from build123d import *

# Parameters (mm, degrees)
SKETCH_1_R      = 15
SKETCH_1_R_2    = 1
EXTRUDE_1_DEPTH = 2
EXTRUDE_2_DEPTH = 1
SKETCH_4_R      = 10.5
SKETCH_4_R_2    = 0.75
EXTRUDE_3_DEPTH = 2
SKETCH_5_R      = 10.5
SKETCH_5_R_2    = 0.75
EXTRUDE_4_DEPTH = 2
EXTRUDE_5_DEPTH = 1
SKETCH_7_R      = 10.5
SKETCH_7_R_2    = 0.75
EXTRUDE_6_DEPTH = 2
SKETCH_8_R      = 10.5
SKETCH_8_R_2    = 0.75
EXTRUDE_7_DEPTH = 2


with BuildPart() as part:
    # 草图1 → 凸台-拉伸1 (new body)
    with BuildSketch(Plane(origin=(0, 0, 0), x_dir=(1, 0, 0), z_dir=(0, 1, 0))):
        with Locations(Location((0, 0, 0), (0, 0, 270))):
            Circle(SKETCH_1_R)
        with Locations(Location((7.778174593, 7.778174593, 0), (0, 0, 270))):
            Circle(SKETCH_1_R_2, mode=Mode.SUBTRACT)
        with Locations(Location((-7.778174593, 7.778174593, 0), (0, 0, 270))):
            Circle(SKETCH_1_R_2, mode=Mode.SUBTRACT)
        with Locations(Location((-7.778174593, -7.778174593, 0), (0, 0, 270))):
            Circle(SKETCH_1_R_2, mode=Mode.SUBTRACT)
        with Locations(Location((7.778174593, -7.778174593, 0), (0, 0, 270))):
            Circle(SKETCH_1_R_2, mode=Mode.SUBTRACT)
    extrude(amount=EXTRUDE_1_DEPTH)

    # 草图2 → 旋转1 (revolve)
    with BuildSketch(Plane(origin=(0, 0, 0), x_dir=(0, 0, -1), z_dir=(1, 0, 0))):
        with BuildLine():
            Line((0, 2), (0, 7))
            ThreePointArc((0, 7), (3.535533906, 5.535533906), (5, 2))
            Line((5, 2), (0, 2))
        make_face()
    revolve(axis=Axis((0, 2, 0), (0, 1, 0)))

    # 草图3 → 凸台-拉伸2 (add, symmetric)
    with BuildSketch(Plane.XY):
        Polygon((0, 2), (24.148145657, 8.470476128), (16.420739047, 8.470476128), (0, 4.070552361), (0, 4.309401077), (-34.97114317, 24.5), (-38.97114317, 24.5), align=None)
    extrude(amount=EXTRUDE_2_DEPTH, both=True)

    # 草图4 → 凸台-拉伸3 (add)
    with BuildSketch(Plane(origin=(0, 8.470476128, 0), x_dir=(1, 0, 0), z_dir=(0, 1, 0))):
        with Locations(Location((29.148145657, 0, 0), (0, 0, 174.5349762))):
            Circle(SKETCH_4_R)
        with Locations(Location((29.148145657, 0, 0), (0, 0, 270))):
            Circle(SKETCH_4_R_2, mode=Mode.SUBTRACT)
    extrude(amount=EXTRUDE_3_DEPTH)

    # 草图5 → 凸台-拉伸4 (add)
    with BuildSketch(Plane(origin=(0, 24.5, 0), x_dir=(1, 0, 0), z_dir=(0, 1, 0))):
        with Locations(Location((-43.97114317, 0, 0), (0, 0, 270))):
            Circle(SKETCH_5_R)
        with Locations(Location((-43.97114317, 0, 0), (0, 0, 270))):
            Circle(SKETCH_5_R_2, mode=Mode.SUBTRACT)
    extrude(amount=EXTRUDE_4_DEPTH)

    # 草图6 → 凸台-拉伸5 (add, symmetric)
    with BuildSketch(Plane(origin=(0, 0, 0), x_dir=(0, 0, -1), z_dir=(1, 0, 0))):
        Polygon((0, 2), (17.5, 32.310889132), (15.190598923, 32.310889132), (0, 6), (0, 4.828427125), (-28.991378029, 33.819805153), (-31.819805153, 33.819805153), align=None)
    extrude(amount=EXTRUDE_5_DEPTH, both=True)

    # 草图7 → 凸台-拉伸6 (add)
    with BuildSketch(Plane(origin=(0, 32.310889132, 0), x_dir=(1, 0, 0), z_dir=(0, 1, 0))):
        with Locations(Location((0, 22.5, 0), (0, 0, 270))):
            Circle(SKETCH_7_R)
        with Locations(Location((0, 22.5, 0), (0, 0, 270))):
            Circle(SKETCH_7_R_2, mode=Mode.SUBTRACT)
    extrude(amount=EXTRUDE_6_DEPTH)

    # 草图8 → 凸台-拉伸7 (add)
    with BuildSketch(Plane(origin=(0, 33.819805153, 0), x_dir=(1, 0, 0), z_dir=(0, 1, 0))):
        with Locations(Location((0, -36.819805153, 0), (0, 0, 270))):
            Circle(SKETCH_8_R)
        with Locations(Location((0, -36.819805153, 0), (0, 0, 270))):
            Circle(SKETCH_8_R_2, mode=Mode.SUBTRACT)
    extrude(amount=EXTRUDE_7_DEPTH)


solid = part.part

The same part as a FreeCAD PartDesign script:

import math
import FreeCAD as App
import Part
import Sketcher

V = App.Vector
Q = App.Units.Quantity

doc = App.newDocument("Part")
body = doc.addObject("PartDesign::Body", "Body")

sketch1 = doc.addObject("Sketcher::SketchObject", "Sketch")
body.addObject(sketch1)
sketch1.AttachmentSupport = (doc.XZ_Plane, [""])
sketch1.MapMode = "FlatFace"
sketch1.addGeometry([
    Part.Circle(V(0, 0, 0), V(0, 0, 1), 15),
    Part.Circle(V(-7.8, -7.8, 0), V(0, 0, 1), 1),
    Part.Circle(V(-7.8, 7.8, 0), V(0, 0, 1), 1),
    Part.Circle(V(7.8, -7.8, 0), V(0, 0, 1), 1),
    Part.Circle(V(7.8, 7.8, 0), V(0, 0, 1), 1),
], False)
sketch1.addConstraint([
    Sketcher.Constraint("Coincident", 0, 3, -1, 1),
    Sketcher.Constraint("Equal", 1, 2),
    Sketcher.Constraint("Equal", 2, 3),
    Sketcher.Constraint("Equal", 3, 4),
    Sketcher.Constraint("Symmetric", 2, 3, 3, 3, -1, 1),
    Sketcher.Constraint("Symmetric", 1, 3, 4, 3, -1, 1),
    Sketcher.Constraint("Symmetric", 1, 3, 3, 3, -2),
    Sketcher.Constraint("Diameter", 0, Q("30 mm")),
    Sketcher.Constraint("Diameter", 1, Q("2 mm")),
    Sketcher.Constraint("DistanceY", 1, 3, 2, 3, Q("15.556349 mm")),
    Sketcher.Constraint("DistanceX", 1, 3, 3, 3, Q("15.556349 mm")),
])
pad1 = doc.addObject("PartDesign::Pad", "Pad")
body.addObject(pad1)
pad1.Profile = sketch1
pad1.Length = 2
pad1.Reversed = True

sketch2 = doc.addObject("Sketcher::SketchObject", "Sketch001")
body.addObject(sketch2)
sketch2.AttachmentSupport = (doc.YZ_Plane, [""])
sketch2.MapMode = "FlatFace"
sketch2.addGeometry([
    Part.LineSegment(V(7, 0, 0), V(2, 0, 0)),
    Part.LineSegment(V(2, 0, 0), V(2, -5, 0)),
    Part.ArcOfCircle(Part.Circle(V(2, 0, 0), V(0, 0, 1), 5), math.radians(-90), math.radians(0)),
], False)
sketch2.addConstraint([
    Sketcher.Constraint("Coincident", 0, 2, 1, 1),
    Sketcher.Constraint("Coincident", 1, 2, 2, 1),
    Sketcher.Constraint("Coincident", 2, 2, 0, 1),
    Sketcher.Constraint("Horizontal", 0),
    Sketcher.Constraint("Vertical", 1),
    Sketcher.Constraint("Coincident", 0, 2, 2, 3),
    Sketcher.Constraint("PointOnObject", 2, 3, -1),
    Sketcher.Constraint("Radius", 2, Q("5 mm")),
    Sketcher.Constraint("DistanceX", -1, 1, 2, 3, Q("2 mm")),
])
revolution = doc.addObject("PartDesign::Revolution", "Revolution")
body.addObject(revolution)
revolution.Profile = sketch2
revolution.ReferenceAxis = (sketch2, ["H_Axis"])
revolution.Angle = 360

sketch3 = doc.addObject("Sketcher::SketchObject", "Sketch002")
body.addObject(sketch3)
sketch3.AttachmentSupport = (doc.XY_Plane, [""])
sketch3.MapMode = "FlatFace"
sketch3.addGeometry([
    Part.LineSegment(V(0, 2, 0), V(24.15, 8.47, 0)),
    Part.LineSegment(V(24.15, 8.47, 0), V(16.42, 8.47, 0)),
    Part.LineSegment(V(16.42, 8.47, 0), V(0, 4.07, 0)),
    Part.LineSegment(V(0, 4.07, 0), V(0, 4.31, 0)),
    Part.LineSegment(V(0, 4.31, 0), V(-34.97, 24.5, 0)),
    Part.LineSegment(V(-34.97, 24.5, 0), V(-38.97, 24.5, 0)),
    Part.LineSegment(V(-38.97, 24.5, 0), V(0, 2, 0)),
], False)
sketch3.addConstraint([
    Sketcher.Constraint("Coincident", 0, 2, 1, 1),
    Sketcher.Constraint("Coincident", 1, 2, 2, 1),
    Sketcher.Constraint("Coincident", 2, 2, 3, 1),
    Sketcher.Constraint("Coincident", 3, 2, 4, 1),
    Sketcher.Constraint("Coincident", 4, 2, 5, 1),
    Sketcher.Constraint("Coincident", 5, 2, 6, 1),
    Sketcher.Constraint("Coincident", 6, 2, 0, 1),
    Sketcher.Constraint("Horizontal", 1),
    Sketcher.Constraint("Vertical", 3),
    Sketcher.Constraint("Horizontal", 5),
    Sketcher.Constraint("PointOnObject", 2, 2, -2),
    Sketcher.Constraint("PointOnObject", 6, 2, -2),
    Sketcher.Constraint("Parallel", 0, 2),
    Sketcher.Constraint("Parallel", 4, 6),
    Sketcher.Constraint("DistanceX", 5, 2, 5, 1, Q("4 mm")),
    Sketcher.Constraint("Angle", 0, Q("15 deg")),
    Sketcher.Constraint("Angle", 4, Q("150 deg")),
    Sketcher.Constraint("Distance", 0, Q("25 mm")),
    Sketcher.Constraint("Distance", 2, Q("17 mm")),
    Sketcher.Constraint("Distance", 6, Q("45 mm")),
    Sketcher.Constraint("DistanceY", -1, 1, 6, 2, Q("2 mm")),
])
pad2 = doc.addObject("PartDesign::Pad", "Pad001")
body.addObject(pad2)
pad2.Profile = sketch3
pad2.Length = 2
pad2.Midplane = True

sketch4 = doc.addObject("Sketcher::SketchObject", "Sketch003")
body.addObject(sketch4)
sketch4.AttachmentSupport = (doc.XZ_Plane, [""])
sketch4.MapMode = "FlatFace"
sketch4.AttachmentOffset = App.Placement(V(0, 0, -8.470476), App.Rotation())
sketch4.addGeometry([
    Part.Circle(V(29.1, 0, 0), V(0, 0, 1), 10.5),
    Part.Circle(V(29.1, 0, 0), V(0, 0, 1), 0.8),
], False)
sketch4.addConstraint([
    Sketcher.Constraint("Coincident", 1, 3, 0, 3),
    Sketcher.Constraint("PointOnObject", 0, 3, -1),
    Sketcher.Constraint("Diameter", 0, Q("21 mm")),
    Sketcher.Constraint("Diameter", 1, Q("1.5 mm")),
    Sketcher.Constraint("DistanceX", -1, 1, 0, 3, Q("29.148146 mm")),
])
pad3 = doc.addObject("PartDesign::Pad", "Pad002")
body.addObject(pad3)
pad3.Profile = sketch4
pad3.Length = 2
pad3.Reversed = True

sketch5 = doc.addObject("Sketcher::SketchObject", "Sketch004")
body.addObject(sketch5)
sketch5.AttachmentSupport = (doc.XZ_Plane, [""])
sketch5.MapMode = "FlatFace"
sketch5.AttachmentOffset = App.Placement(V(0, 0, -24.5), App.Rotation())
sketch5.addGeometry([
    Part.Circle(V(-44, 0, 0), V(0, 0, 1), 10.5),
    Part.Circle(V(-44, 0, 0), V(0, 0, 1), 0.8),
], False)
sketch5.addConstraint([
    Sketcher.Constraint("Coincident", 1, 3, 0, 3),
    Sketcher.Constraint("PointOnObject", 0, 3, -1),
    Sketcher.Constraint("Diameter", 0, Q("21 mm")),
    Sketcher.Constraint("Diameter", 1, Q("1.5 mm")),
    Sketcher.Constraint("DistanceX", 0, 3, -1, 1, Q("43.971143 mm")),
])
pad4 = doc.addObject("PartDesign::Pad", "Pad003")
body.addObject(pad4)
pad4.Profile = sketch5
pad4.Length = 2
pad4.Reversed = True

sketch6 = doc.addObject("Sketcher::SketchObject", "Sketch005")
body.addObject(sketch6)
sketch6.AttachmentSupport = (doc.YZ_Plane, [""])
sketch6.MapMode = "FlatFace"
sketch6.addGeometry([
    Part.LineSegment(V(2, 0, 0), V(32.3, -17.5, 0)),
    Part.LineSegment(V(32.3, -17.5, 0), V(32.3, -15.2, 0)),
    Part.LineSegment(V(32.3, -15.2, 0), V(6, 0, 0)),
    Part.LineSegment(V(6, 0, 0), V(4.8, 0, 0)),
    Part.LineSegment(V(4.8, 0, 0), V(33.8, 29, 0)),
    Part.LineSegment(V(33.8, 29, 0), V(33.8, 31.8, 0)),
    Part.LineSegment(V(33.8, 31.8, 0), V(2, 0, 0)),
], False)
sketch6.addConstraint([
    Sketcher.Constraint("Coincident", 0, 2, 1, 1),
    Sketcher.Constraint("Coincident", 1, 2, 2, 1),
    Sketcher.Constraint("Coincident", 2, 2, 3, 1),
    Sketcher.Constraint("Coincident", 3, 2, 4, 1),
    Sketcher.Constraint("Coincident", 4, 2, 5, 1),
    Sketcher.Constraint("Coincident", 5, 2, 6, 1),
    Sketcher.Constraint("Coincident", 6, 2, 0, 1),
    Sketcher.Constraint("Vertical", 1),
    Sketcher.Constraint("Horizontal", 3),
    Sketcher.Constraint("Vertical", 5),
    Sketcher.Constraint("PointOnObject", 2, 2, -1),
    Sketcher.Constraint("PointOnObject", 6, 2, -1),
    Sketcher.Constraint("Parallel", 0, 2),
    Sketcher.Constraint("Parallel", 4, 6),
    Sketcher.Constraint("Angle", 0, Q("-30 deg")),
    Sketcher.Constraint("Angle", 4, Q("45 deg")),
    Sketcher.Constraint("Distance", 0, Q("35 mm")),
    Sketcher.Constraint("Distance", 4, Q("41 mm")),
    Sketcher.Constraint("Distance", 6, Q("45 mm")),
    Sketcher.Constraint("DistanceX", -1, 1, 2, 2, Q("6 mm")),
    Sketcher.Constraint("DistanceX", -1, 1, 6, 2, Q("2 mm")),
])
pad5 = doc.addObject("PartDesign::Pad", "Pad004")
body.addObject(pad5)
pad5.Profile = sketch6
pad5.Length = 2
pad5.Midplane = True

sketch7 = doc.addObject("Sketcher::SketchObject", "Sketch006")
body.addObject(sketch7)
sketch7.AttachmentSupport = (doc.XZ_Plane, [""])
sketch7.MapMode = "FlatFace"
sketch7.AttachmentOffset = App.Placement(V(0, 0, -32.310889), App.Rotation())
sketch7.addGeometry([
    Part.Circle(V(0, -22.5, 0), V(0, 0, 1), 10.5),
    Part.Circle(V(0, -22.5, 0), V(0, 0, 1), 0.8),
], False)
sketch7.addConstraint([
    Sketcher.Constraint("Coincident", 1, 3, 0, 3),
    Sketcher.Constraint("PointOnObject", 0, 3, -2),
    Sketcher.Constraint("Diameter", 0, Q("21 mm")),
    Sketcher.Constraint("Diameter", 1, Q("1.5 mm")),
    Sketcher.Constraint("DistanceY", 0, 3, -1, 1, Q("22.5 mm")),
])
pad6 = doc.addObject("PartDesign::Pad", "Pad005")
body.addObject(pad6)
pad6.Profile = sketch7
pad6.Length = 2
pad6.Reversed = True

sketch8 = doc.addObject("Sketcher::SketchObject", "Sketch007")
body.addObject(sketch8)
sketch8.AttachmentSupport = (doc.XZ_Plane, [""])
sketch8.MapMode = "FlatFace"
sketch8.AttachmentOffset = App.Placement(V(0, 0, -33.819805), App.Rotation())
sketch8.addGeometry([
    Part.Circle(V(0, 36.8, 0), V(0, 0, 1), 10.5),
    Part.Circle(V(0, 36.8, 0), V(0, 0, 1), 0.8),
], False)
sketch8.addConstraint([
    Sketcher.Constraint("Coincident", 1, 3, 0, 3),
    Sketcher.Constraint("PointOnObject", 0, 3, -2),
    Sketcher.Constraint("Diameter", 0, Q("21 mm")),
    Sketcher.Constraint("Diameter", 1, Q("1.5 mm")),
    Sketcher.Constraint("DistanceY", -1, 1, 0, 3, Q("36.819805 mm")),
])
pad7 = doc.addObject("PartDesign::Pad", "Pad006")
body.addObject(pad7)
pad7.Profile = sketch8
pad7.Length = 2
pad7.Reversed = True

doc.recompute()
